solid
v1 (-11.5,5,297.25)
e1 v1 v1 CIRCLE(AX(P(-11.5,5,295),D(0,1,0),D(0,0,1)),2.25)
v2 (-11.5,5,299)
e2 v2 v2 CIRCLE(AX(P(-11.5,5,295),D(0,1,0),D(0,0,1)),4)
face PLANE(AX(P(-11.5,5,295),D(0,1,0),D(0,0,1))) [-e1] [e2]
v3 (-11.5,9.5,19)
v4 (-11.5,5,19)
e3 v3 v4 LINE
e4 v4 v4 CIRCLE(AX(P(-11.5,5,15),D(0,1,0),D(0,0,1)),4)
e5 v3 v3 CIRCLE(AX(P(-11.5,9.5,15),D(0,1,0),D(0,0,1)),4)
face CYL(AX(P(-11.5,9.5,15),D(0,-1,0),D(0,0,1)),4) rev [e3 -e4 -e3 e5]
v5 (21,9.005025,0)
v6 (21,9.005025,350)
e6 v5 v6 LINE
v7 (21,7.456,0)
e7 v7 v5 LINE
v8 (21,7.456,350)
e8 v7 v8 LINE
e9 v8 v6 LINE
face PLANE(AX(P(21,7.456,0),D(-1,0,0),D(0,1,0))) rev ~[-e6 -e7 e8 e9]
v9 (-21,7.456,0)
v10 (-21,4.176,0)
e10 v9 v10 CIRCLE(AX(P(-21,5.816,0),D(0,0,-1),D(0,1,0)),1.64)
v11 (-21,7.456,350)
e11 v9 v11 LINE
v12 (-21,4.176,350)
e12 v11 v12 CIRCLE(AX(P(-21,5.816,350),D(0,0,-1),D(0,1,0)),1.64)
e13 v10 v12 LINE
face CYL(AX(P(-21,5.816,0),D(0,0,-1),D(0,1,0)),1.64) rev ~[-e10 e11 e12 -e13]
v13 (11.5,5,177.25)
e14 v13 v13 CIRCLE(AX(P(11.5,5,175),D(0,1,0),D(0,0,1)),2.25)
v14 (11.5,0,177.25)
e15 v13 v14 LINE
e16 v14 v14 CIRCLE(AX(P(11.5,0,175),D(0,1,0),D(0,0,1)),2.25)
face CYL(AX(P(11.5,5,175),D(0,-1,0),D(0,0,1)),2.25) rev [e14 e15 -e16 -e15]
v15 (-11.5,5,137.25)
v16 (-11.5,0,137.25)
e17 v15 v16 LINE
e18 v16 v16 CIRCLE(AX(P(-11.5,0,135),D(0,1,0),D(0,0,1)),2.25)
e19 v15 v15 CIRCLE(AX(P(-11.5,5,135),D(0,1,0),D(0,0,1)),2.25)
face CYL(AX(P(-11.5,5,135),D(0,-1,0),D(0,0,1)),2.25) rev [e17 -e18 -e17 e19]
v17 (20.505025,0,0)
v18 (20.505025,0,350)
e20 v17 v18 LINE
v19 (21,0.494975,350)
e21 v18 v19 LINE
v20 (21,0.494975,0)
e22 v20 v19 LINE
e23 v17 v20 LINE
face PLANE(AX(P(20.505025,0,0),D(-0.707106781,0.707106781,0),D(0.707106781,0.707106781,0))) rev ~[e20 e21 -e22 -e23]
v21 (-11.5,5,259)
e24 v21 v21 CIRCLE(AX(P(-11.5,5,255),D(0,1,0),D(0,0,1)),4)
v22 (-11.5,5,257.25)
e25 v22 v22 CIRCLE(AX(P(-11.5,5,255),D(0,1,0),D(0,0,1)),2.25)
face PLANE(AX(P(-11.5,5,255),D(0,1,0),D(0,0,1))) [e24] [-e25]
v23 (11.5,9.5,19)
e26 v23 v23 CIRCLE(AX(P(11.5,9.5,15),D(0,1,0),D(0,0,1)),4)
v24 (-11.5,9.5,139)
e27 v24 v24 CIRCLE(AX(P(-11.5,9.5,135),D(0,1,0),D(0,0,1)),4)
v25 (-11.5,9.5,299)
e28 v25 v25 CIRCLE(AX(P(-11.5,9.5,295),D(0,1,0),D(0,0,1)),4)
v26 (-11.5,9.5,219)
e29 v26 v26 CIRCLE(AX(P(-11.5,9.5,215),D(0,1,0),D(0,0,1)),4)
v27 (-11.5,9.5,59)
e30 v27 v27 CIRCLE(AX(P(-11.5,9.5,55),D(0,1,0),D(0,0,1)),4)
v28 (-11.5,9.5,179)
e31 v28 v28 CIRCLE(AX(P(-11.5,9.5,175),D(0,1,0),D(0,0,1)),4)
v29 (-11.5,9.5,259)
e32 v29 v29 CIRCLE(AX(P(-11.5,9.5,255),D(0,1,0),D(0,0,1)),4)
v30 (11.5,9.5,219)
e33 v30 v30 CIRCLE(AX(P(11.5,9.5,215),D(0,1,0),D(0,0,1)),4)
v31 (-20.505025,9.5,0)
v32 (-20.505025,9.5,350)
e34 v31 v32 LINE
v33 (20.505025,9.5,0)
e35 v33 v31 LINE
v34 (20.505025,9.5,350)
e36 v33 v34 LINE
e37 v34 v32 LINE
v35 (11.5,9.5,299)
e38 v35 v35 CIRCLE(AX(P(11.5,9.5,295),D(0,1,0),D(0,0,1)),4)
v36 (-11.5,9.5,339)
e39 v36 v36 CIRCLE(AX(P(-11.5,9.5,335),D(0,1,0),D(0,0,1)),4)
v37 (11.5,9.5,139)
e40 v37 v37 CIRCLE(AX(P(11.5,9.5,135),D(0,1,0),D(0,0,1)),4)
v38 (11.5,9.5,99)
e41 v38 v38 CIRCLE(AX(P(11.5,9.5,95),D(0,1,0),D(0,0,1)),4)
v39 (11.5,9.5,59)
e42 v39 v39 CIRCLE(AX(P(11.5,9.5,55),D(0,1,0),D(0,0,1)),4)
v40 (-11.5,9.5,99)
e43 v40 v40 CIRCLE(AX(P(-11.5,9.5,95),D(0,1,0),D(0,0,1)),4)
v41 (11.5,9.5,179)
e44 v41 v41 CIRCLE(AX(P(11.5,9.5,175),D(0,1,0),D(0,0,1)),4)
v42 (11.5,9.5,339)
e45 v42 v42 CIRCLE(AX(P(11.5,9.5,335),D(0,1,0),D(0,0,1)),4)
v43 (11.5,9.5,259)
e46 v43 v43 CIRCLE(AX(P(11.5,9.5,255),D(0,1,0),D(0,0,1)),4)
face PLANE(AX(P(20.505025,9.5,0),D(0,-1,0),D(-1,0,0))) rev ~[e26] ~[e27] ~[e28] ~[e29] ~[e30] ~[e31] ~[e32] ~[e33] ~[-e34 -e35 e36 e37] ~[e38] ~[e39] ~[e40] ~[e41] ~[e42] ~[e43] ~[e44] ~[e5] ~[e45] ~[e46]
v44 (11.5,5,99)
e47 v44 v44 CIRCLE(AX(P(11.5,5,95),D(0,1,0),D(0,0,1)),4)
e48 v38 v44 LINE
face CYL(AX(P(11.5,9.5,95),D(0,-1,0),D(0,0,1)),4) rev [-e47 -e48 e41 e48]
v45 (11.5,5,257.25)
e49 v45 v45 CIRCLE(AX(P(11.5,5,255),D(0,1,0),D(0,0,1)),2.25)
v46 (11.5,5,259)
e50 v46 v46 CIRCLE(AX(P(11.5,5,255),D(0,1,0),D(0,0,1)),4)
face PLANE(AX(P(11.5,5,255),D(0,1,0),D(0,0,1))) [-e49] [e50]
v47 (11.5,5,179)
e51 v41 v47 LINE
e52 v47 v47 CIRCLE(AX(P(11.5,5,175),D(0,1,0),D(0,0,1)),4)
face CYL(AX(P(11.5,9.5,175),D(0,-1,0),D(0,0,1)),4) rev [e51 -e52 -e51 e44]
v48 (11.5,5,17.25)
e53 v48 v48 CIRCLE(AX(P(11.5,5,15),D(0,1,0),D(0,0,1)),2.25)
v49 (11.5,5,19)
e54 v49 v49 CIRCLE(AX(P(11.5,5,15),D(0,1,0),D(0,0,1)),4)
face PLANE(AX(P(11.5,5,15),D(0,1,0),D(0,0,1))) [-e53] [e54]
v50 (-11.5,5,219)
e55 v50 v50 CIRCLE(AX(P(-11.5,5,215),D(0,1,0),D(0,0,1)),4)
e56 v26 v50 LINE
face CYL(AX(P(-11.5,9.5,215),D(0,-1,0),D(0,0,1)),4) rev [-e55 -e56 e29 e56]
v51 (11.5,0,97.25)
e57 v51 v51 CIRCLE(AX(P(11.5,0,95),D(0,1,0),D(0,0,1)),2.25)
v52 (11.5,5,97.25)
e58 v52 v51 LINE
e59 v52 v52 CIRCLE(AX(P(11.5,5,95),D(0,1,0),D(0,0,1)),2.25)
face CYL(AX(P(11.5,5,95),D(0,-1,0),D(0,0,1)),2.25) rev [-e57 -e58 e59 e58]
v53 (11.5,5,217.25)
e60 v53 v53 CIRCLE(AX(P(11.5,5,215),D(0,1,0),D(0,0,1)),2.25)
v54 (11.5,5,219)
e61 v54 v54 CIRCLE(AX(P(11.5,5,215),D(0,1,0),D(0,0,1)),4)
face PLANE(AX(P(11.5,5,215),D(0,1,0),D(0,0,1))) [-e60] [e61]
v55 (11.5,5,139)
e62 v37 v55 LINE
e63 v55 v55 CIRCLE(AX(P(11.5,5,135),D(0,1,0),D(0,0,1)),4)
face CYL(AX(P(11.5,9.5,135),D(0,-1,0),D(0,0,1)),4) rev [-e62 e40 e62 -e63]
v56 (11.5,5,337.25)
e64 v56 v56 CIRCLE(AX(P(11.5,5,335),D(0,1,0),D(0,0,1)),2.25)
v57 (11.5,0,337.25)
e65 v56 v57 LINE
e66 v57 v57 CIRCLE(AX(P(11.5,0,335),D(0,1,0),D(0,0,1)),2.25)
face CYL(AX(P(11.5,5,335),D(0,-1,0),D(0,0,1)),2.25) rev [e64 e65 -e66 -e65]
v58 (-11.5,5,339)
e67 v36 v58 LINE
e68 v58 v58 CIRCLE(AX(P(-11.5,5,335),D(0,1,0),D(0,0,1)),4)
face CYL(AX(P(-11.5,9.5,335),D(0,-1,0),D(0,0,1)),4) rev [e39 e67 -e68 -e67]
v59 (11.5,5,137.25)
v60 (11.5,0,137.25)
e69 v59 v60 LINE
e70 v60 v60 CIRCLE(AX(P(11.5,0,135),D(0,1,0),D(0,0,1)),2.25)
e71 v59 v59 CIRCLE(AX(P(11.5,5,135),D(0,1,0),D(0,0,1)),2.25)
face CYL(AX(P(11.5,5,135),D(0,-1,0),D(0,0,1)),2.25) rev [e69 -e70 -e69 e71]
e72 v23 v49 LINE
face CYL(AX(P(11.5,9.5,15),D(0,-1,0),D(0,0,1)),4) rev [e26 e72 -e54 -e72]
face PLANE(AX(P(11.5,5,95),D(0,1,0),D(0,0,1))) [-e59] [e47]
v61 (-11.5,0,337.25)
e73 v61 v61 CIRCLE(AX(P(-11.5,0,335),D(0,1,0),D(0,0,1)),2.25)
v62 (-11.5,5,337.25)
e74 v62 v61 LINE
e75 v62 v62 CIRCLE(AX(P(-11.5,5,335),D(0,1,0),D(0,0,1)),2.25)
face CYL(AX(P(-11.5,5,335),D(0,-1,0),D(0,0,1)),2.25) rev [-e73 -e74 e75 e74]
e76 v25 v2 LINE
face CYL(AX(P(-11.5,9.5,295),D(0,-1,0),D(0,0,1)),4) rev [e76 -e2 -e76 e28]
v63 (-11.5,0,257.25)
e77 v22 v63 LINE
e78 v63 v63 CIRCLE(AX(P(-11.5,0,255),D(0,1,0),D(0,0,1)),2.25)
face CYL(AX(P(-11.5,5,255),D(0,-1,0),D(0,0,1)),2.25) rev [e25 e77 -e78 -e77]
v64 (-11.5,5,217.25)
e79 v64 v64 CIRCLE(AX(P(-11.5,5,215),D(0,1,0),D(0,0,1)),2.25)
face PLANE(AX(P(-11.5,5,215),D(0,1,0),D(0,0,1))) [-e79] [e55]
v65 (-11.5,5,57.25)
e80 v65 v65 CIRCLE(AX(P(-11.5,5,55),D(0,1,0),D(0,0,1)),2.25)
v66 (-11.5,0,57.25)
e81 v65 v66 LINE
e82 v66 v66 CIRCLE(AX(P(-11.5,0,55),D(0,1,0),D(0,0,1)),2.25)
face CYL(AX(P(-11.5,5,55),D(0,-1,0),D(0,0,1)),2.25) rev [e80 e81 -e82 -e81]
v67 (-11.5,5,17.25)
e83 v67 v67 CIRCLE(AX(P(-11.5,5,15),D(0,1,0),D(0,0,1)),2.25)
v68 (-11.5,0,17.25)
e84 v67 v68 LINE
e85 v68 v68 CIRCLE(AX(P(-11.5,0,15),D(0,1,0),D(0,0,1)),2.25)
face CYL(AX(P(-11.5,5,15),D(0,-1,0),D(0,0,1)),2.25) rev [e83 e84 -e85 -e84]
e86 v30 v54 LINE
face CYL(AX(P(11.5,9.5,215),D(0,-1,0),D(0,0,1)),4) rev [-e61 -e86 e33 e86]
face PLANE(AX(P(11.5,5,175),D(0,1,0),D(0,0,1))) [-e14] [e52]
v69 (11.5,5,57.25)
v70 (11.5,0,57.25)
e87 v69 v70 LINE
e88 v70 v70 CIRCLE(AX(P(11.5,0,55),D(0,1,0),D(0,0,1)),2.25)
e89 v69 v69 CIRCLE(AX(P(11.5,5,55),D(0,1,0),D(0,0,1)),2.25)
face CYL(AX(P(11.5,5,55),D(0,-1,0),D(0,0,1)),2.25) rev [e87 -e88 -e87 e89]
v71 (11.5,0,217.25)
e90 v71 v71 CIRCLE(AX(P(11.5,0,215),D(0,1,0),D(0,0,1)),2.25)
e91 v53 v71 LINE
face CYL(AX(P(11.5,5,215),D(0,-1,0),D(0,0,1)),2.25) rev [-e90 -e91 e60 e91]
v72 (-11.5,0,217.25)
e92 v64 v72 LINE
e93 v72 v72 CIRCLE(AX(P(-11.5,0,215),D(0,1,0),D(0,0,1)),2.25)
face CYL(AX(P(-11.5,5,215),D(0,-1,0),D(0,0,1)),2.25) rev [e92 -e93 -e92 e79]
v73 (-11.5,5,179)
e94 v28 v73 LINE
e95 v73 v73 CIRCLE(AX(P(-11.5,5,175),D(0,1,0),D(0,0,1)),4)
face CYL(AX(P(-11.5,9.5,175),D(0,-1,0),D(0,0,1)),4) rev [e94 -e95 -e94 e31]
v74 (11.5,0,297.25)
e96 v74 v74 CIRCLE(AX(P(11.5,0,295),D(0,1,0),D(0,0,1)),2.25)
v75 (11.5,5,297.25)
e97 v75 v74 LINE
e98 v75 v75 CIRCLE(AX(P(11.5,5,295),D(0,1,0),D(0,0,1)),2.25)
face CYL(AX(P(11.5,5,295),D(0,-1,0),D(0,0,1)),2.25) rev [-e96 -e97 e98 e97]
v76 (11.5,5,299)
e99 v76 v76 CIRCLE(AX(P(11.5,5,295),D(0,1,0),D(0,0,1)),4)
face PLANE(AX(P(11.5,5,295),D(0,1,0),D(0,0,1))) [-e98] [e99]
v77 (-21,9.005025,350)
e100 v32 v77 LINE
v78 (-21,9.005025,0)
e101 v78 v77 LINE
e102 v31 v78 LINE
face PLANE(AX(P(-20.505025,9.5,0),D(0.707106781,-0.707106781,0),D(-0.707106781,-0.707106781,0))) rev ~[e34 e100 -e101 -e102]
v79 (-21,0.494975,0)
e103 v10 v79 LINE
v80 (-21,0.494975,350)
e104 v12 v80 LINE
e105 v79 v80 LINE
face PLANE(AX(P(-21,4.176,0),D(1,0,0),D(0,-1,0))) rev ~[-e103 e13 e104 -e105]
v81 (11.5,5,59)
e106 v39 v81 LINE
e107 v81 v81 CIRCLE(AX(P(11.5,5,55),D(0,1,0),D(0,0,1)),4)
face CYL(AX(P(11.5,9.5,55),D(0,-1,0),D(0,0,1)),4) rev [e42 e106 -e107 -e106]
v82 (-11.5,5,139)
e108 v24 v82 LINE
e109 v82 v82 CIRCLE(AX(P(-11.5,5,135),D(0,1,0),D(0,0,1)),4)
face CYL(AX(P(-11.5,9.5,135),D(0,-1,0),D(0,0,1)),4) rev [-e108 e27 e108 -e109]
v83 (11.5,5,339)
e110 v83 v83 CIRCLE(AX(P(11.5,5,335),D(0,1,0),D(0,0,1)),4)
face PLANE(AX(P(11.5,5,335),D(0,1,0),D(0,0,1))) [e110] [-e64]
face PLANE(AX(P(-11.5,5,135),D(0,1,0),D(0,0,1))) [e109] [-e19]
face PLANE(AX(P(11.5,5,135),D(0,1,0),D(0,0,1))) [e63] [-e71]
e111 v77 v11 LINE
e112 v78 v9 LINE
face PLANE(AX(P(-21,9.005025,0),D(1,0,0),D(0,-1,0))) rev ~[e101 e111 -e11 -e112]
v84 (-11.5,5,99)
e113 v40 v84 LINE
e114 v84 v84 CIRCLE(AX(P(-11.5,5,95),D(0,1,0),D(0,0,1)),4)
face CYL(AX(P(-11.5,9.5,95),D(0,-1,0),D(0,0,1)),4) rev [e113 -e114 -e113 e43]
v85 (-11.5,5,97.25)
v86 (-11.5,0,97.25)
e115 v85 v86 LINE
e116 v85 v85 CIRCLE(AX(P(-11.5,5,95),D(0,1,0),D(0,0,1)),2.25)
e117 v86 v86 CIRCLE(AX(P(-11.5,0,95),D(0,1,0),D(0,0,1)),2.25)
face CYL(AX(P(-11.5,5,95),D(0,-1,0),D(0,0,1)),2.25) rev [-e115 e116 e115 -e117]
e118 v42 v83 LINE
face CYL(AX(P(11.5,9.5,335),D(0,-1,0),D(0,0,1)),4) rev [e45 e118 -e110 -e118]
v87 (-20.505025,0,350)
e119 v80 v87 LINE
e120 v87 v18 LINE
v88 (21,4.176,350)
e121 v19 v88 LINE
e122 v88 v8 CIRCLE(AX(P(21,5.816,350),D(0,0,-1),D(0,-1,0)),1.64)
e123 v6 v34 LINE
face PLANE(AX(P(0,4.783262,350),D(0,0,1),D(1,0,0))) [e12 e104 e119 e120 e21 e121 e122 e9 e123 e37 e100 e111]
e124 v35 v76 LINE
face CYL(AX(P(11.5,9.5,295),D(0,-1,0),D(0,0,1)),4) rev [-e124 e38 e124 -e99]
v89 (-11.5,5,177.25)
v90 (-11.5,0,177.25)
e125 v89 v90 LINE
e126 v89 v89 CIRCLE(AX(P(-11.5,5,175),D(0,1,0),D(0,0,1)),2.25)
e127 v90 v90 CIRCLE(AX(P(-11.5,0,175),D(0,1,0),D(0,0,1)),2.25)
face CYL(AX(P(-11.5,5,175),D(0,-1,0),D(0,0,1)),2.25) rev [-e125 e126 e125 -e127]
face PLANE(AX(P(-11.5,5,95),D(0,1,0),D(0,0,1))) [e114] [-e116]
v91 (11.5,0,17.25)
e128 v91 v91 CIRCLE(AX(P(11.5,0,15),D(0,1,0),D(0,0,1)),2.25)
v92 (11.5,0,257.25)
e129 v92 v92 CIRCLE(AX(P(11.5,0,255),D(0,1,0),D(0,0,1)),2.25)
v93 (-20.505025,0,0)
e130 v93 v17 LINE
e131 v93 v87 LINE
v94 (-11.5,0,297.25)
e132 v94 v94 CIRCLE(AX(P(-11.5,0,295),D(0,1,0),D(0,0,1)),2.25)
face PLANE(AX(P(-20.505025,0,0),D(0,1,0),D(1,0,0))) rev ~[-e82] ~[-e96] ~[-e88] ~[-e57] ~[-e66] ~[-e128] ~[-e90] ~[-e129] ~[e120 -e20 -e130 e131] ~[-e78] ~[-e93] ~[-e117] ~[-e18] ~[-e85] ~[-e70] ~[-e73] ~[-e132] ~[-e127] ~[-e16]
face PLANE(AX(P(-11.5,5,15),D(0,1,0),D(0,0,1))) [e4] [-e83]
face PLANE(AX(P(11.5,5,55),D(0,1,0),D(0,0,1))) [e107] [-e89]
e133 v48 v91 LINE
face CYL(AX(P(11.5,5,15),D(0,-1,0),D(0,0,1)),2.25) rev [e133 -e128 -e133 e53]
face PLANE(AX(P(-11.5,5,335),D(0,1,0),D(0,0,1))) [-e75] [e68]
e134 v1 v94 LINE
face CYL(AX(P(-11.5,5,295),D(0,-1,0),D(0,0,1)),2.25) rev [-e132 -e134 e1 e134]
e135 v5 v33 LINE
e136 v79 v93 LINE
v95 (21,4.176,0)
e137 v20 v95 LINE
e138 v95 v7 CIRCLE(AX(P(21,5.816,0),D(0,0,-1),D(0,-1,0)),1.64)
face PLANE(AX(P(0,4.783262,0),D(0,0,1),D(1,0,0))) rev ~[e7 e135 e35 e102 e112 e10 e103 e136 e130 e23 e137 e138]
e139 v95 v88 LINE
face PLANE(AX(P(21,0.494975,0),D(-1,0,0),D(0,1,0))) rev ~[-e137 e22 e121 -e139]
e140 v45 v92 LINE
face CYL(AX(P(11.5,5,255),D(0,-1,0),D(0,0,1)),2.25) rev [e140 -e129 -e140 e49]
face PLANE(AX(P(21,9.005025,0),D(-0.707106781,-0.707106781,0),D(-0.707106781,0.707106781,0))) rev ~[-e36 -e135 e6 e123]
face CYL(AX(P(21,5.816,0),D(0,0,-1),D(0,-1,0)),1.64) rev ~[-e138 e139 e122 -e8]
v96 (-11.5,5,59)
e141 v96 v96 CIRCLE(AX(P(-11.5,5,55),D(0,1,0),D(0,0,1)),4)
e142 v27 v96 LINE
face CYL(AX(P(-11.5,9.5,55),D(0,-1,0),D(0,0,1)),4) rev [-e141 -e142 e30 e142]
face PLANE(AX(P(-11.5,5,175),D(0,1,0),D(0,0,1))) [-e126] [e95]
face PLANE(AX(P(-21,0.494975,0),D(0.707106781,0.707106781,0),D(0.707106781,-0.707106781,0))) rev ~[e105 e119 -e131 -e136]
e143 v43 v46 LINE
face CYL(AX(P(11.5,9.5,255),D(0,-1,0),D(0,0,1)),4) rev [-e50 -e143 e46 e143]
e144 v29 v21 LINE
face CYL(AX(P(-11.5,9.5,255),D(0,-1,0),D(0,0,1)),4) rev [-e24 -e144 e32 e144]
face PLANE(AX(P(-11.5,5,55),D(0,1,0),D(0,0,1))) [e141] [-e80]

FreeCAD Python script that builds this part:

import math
import FreeCAD as App
import Part
import Sketcher
from FreeCAD import Vector
Q = App.Units.Quantity


def add_polygon(sketch, points):
    """Adds a closed chain of lines whose ends are joined by coincident constraints."""
    first, n = sketch.GeometryCount, len(points)
    for a, b in zip(points, points[1:] + points[:1]):
        sketch.addGeometry(Part.LineSegment(App.Vector(*a, 0), App.Vector(*b, 0)), False)
    for i in range(n):
        sketch.addConstraint(Sketcher.Constraint("Coincident", first + i, 2, first + (i + 1) % n, 1))

doc = App.newDocument("Part")
body = doc.addObject("PartDesign::Body", "Body")

sketch1 = body.newObject("Sketcher::SketchObject", "Sketch")
sketch1.AttachmentSupport = (doc.getObject("XY_Plane"), [""])
sketch1.MapMode = "FlatFace"
sketch1.addGeometry([
    Part.LineSegment(Vector(-21, 9, 0), Vector(-21, 7.5, 0)),
    Part.ArcOfCircle(Part.Circle(Vector(-21, 5.8, 0), Vector(0, 0, 1), 1.6), math.radians(-90), math.radians(90)),
    Part.LineSegment(Vector(-21, 4.2, 0), Vector(-21, 0.5, 0)),
    Part.LineSegment(Vector(-21, 0.5, 0), Vector(-20.5, 0, 0)),
    Part.LineSegment(Vector(-20.5, 0, 0), Vector(20.5, 0, 0)),
    Part.LineSegment(Vector(20.5, 0, 0), Vector(21, 0.5, 0)),
    Part.LineSegment(Vector(21, 0.5, 0), Vector(21, 4.2, 0)),
    Part.ArcOfCircle(Part.Circle(Vector(21, 5.8, 0), Vector(0, 0, 1), 1.6), math.radians(90), math.radians(270)),
    Part.LineSegment(Vector(21, 7.5, 0), Vector(21, 9, 0)),
    Part.LineSegment(Vector(21, 9, 0), Vector(20.5, 9.5, 0)),
    Part.LineSegment(Vector(20.5, 9.5, 0), Vector(-20.5, 9.5, 0)),
    Part.LineSegment(Vector(-20.5, 9.5, 0), Vector(-21, 9, 0)),
], False)
sketch1.addConstraint([
    Sketcher.Constraint("Coincident", 0, 2, 1, 2),
    Sketcher.Constraint("Coincident", 1, 1, 2, 1),
    Sketcher.Constraint("Coincident", 2, 2, 3, 1),
    Sketcher.Constraint("Coincident", 3, 2, 4, 1),
    Sketcher.Constraint("Coincident", 4, 2, 5, 1),
    Sketcher.Constraint("Coincident", 5, 2, 6, 1),
    Sketcher.Constraint("Coincident", 6, 2, 7, 2),
    Sketcher.Constraint("Coincident", 7, 1, 8, 1),
    Sketcher.Constraint("Coincident", 8, 2, 9, 1),
    Sketcher.Constraint("Coincident", 9, 2, 10, 1),
    Sketcher.Constraint("Coincident", 10, 2, 11, 1),
    Sketcher.Constraint("Coincident", 11, 2, 0, 1),
    Sketcher.Constraint("Vertical", 0),
    Sketcher.Constraint("Vertical", 2),
    Sketcher.Constraint("Horizontal", 4),
    Sketcher.Constraint("Vertical", 6),
    Sketcher.Constraint("Vertical", 8),
    Sketcher.Constraint("Horizontal", 10),
    Sketcher.Constraint("Equal", 1, 7),
    Sketcher.Constraint("Symmetric", 3, 2, 4, 2, -1, 1),
    Sketcher.Constraint("Symmetric", 1, 3, 7, 3, -2),
    Sketcher.Constraint("Symmetric", 2, 2, 5, 2, -2),
    Sketcher.Constraint("Symmetric", 8, 2, 11, 2, -2),
    Sketcher.Constraint("Perpendicular", 3, 5),
    Sketcher.Constraint("Perpendicular", 5, 9),
    Sketcher.Constraint("Perpendicular", 9, 11),
    Sketcher.Constraint("Vertical", 1, 3, 0, 2),
    Sketcher.Constraint("Vertical", 0, 2, 1, 1),
    Sketcher.Constraint("Vertical", 4, 2, 9, 2),
    Sketcher.Constraint("Radius", 1, Q("1.64 mm")),
    Sketcher.Constraint("DistanceX", 1, 3, -1, 1, Q("21 mm")),
    Sketcher.Constraint("Distance", 3, Q("0.7 mm")),
    Sketcher.Constraint("DistanceY", -1, 1, 9, 2, Q("9.5 mm")),
    Sketcher.Constraint("DistanceY", -1, 1, 1, 3, Q("5.816 mm")),
])
pad1 = body.newObject("PartDesign::Pad", "Pad")
pad1.Profile = sketch1
pad1.Length = 350

sketch2 = body.newObject("Sketcher::SketchObject", "Sketch001")
sketch2.AttachmentSupport = (doc.getObject("YZ_Plane"), [""])
sketch2.MapMode = "FlatFace"
sketch2.AttachmentOffset = App.Placement(Vector(0, 0, 11.5), App.Rotation())
add_polygon(sketch2, [(9.5, 11), (9.5, 15), (0, 15), (0, 12.8), (5, 12.8), (5, 11)])
sketch2.addGeometry(Part.LineSegment(Vector(0, 15, 0), Vector(9.5, 15, 0)), True)
sketch2.addConstraint([
    Sketcher.Constraint("Vertical", 0),
    Sketcher.Constraint("Horizontal", 1),
    Sketcher.Constraint("Vertical", 2),
    Sketcher.Constraint("Horizontal", 3),
    Sketcher.Constraint("Vertical", 4),
    Sketcher.Constraint("Horizontal", 5),
    Sketcher.Constraint("Horizontal", 6),
    Sketcher.Constraint("Coincident", 6, 1, 1, 2),
    Sketcher.Constraint("PointOnObject", 1, 2, -2),
    Sketcher.Constraint("Vertical", 5, 2, 6, 2),
    Sketcher.Constraint("DistanceX", 3, 1, 3, 2, Q("5 mm")),
    Sketcher.Constraint("DistanceY", 0, 1, 0, 2, Q("4 mm")),
    Sketcher.Constraint("DistanceX", 1, 2, 1, 1, Q("9.5 mm")),
    Sketcher.Constraint("DistanceY", -1, 1, 0, 2, Q("15 mm")),
    Sketcher.Constraint("DistanceY", 2, 2, 2, 1, Q("2.25 mm")),
])
groove = body.newObject("PartDesign::Groove", "Groove")
groove.Profile = sketch2
groove.ReferenceAxis = (sketch2, ["Axis0"])
groove.Angle = 360

sketch3 = body.newObject("Sketcher::SketchObject", "Sketch002")
sketch3.AttachmentSupport = (doc.getObject("YZ_Plane"), [""])
sketch3.MapMode = "FlatFace"
sketch3.AttachmentOffset = App.Placement(Vector(0, 0, 11.5), App.Rotation())
add_polygon(sketch3, [(9.5, 331), (9.5, 335), (0, 335), (0, 332.8), (5, 332.8), (5, 331)])
sketch3.addGeometry(Part.LineSegment(Vector(0, 335, 0), Vector(9.5, 335, 0)), True)
sketch3.addConstraint([
    Sketcher.Constraint("Vertical", 0),
    Sketcher.Constraint("Horizontal", 1),
    Sketcher.Constraint("Vertical", 2),
    Sketcher.Constraint("Horizontal", 3),
    Sketcher.Constraint("Vertical", 4),
    Sketcher.Constraint("Horizontal", 5),
    Sketcher.Constraint("Horizontal", 6),
    Sketcher.Constraint("Coincident", 6, 1, 1, 2),
    Sketcher.Constraint("PointOnObject", 1, 2, -2),
    Sketcher.Constraint("Vertical", 5, 2, 6, 2),
    Sketcher.Constraint("DistanceX", 3, 1, 3, 2, Q("5 mm")),
    Sketcher.Constraint("DistanceY", 0, 1, 0, 2, Q("4 mm")),
    Sketcher.Constraint("DistanceX", 1, 2, 1, 1, Q("9.5 mm")),
    Sketcher.Constraint("DistanceY", -1, 1, 0, 2, Q("335 mm")),
    Sketcher.Constraint("DistanceY", 2, 2, 2, 1, Q("2.25 mm")),
])
groove2 = body.newObject("PartDesign::Groove", "Groove001")
groove2.Profile = sketch3
groove2.ReferenceAxis = (sketch3, ["Axis0"])
groove2.Angle = 360

sketch4 = body.newObject("Sketcher::SketchObject", "Sketch003")
sketch4.AttachmentSupport = (doc.getObject("YZ_Plane"), [""])
sketch4.MapMode = "FlatFace"
sketch4.AttachmentOffset = App.Placement(Vector(0, 0, -11.5), App.Rotation())
add_polygon(sketch4, [(9.5, 331), (9.5, 335), (0, 335), (0, 332.8), (5, 332.8), (5, 331)])
sketch4.addGeometry(Part.LineSegment(Vector(0, 335, 0), Vector(9.5, 335, 0)), True)
sketch4.addConstraint([
    Sketcher.Constraint("Vertical", 0),
    Sketcher.Constraint("Horizontal", 1),
    Sketcher.Constraint("Vertical", 2),
    Sketcher.Constraint("Horizontal", 3),
    Sketcher.Constraint("Vertical", 4),
    Sketcher.Constraint("Horizontal", 5),
    Sketcher.Constraint("Horizontal", 6),
    Sketcher.Constraint("Coincident", 6, 1, 1, 2),
    Sketcher.Constraint("PointOnObject", 1, 2, -2),
    Sketcher.Constraint("Vertical", 5, 2, 6, 2),
    Sketcher.Constraint("DistanceX", 3, 1, 3, 2, Q("5 mm")),
    Sketcher.Constraint("DistanceY", 0, 1, 0, 2, Q("4 mm")),
    Sketcher.Constraint("DistanceX", 1, 2, 1, 1, Q("9.5 mm")),
    Sketcher.Constraint("DistanceY", -1, 1, 0, 2, Q("335 mm")),
    Sketcher.Constraint("DistanceY", 2, 2, 2, 1, Q("2.25 mm")),
])
groove3 = body.newObject("PartDesign::Groove", "Groove002")
groove3.Profile = sketch4
groove3.ReferenceAxis = (sketch4, ["Axis0"])
groove3.Angle = 360

sketch5 = body.newObject("Sketcher::SketchObject", "Sketch004")
sketch5.AttachmentSupport = (doc.getObject("YZ_Plane"), [""])
sketch5.MapMode = "FlatFace"
sketch5.AttachmentOffset = App.Placement(Vector(0, 0, 11.5), App.Rotation())
add_polygon(sketch5, [(9.5, 291), (9.5, 295), (0, 295), (0, 292.8), (5, 292.8), (5, 291)])
sketch5.addGeometry(Part.LineSegment(Vector(0, 295, 0), Vector(9.5, 295, 0)), True)
sketch5.addConstraint([
    Sketcher.Constraint("Vertical", 0),
    Sketcher.Constraint("Horizontal", 1),
    Sketcher.Constraint("Vertical", 2),
    Sketcher.Constraint("Horizontal", 3),
    Sketcher.Constraint("Vertical", 4),
    Sketcher.Constraint("Horizontal", 5),
    Sketcher.Constraint("Horizontal", 6),
    Sketcher.Constraint("Coincident", 6, 1, 1, 2),
    Sketcher.Constraint("PointOnObject", 1, 2, -2),
    Sketcher.Constraint("Vertical", 5, 2, 6, 2),
    Sketcher.Constraint("DistanceX", 3, 1, 3, 2, Q("5 mm")),
    Sketcher.Constraint("DistanceY", 0, 1, 0, 2, Q("4 mm")),
    Sketcher.Constraint("DistanceX", 1, 2, 1, 1, Q("9.5 mm")),
    Sketcher.Constraint("DistanceY", -1, 1, 0, 2, Q("295 mm")),
    Sketcher.Constraint("DistanceY", 2, 2, 2, 1, Q("2.25 mm")),
])
groove4 = body.newObject("PartDesign::Groove", "Groove003")
groove4.Profile = sketch5
groove4.ReferenceAxis = (sketch5, ["Axis0"])
groove4.Angle = 360

sketch6 = body.newObject("Sketcher::SketchObject", "Sketch005")
sketch6.AttachmentSupport = (doc.getObject("YZ_Plane"), [""])
sketch6.MapMode = "FlatFace"
sketch6.AttachmentOffset = App.Placement(Vector(0, 0, -11.5), App.Rotation())
add_polygon(sketch6, [(9.5, 291), (9.5, 295), (0, 295), (0, 292.8), (5, 292.8), (5, 291)])
sketch6.addGeometry(Part.LineSegment(Vector(0, 295, 0), Vector(9.5, 295, 0)), True)
sketch6.addConstraint([
    Sketcher.Constraint("Vertical", 0),
    Sketcher.Constraint("Horizontal", 1),
    Sketcher.Constraint("Vertical", 2),
    Sketcher.Constraint("Horizontal", 3),
    Sketcher.Constraint("Vertical", 4),
    Sketcher.Constraint("Horizontal", 5),
    Sketcher.Constraint("Horizontal", 6),
    Sketcher.Constraint("Coincident", 6, 1, 1, 2),
    Sketcher.Constraint("PointOnObject", 1, 2, -2),
    Sketcher.Constraint("Vertical", 5, 2, 6, 2),
    Sketcher.Constraint("DistanceX", 3, 1, 3, 2, Q("5 mm")),
    Sketcher.Constraint("DistanceY", 0, 1, 0, 2, Q("4 mm")),
    Sketcher.Constraint("DistanceX", 1, 2, 1, 1, Q("9.5 mm")),
    Sketcher.Constraint("DistanceY", -1, 1, 0, 2, Q("295 mm")),
    Sketcher.Constraint("DistanceY", 2, 2, 2, 1, Q("2.25 mm")),
])
groove5 = body.newObject("PartDesign::Groove", "Groove004")
groove5.Profile = sketch6
groove5.ReferenceAxis = (sketch6, ["Axis0"])
groove5.Angle = 360

sketch7 = body.newObject("Sketcher::SketchObject", "Sketch006")
sketch7.AttachmentSupport = (doc.getObject("YZ_Plane"), [""])
sketch7.MapMode = "FlatFace"
sketch7.AttachmentOffset = App.Placement(Vector(0, 0, 11.5), App.Rotation())
add_polygon(sketch7, [(9.5, 251), (9.5, 255), (0, 255), (0, 252.8), (5, 252.8), (5, 251)])
sketch7.addGeometry(Part.LineSegment(Vector(0, 255, 0), Vector(9.5, 255, 0)), True)
sketch7.addConstraint([
    Sketcher.Constraint("Vertical", 0),
    Sketcher.Constraint("Horizontal", 1),
    Sketcher.Constraint("Vertical", 2),
    Sketcher.Constraint("Horizontal", 3),
    Sketcher.Constraint("Vertical", 4),
    Sketcher.Constraint("Horizontal", 5),
    Sketcher.Constraint("Horizontal", 6),
    Sketcher.Constraint("Coincident", 6, 1, 1, 2),
    Sketcher.Constraint("PointOnObject", 1, 2, -2),
    Sketcher.Constraint("Vertical", 5, 2, 6, 2),
    Sketcher.Constraint("DistanceX", 3, 1, 3, 2, Q("5 mm")),
    Sketcher.Constraint("DistanceY", 0, 1, 0, 2, Q("4 mm")),
    Sketcher.Constraint("DistanceX", 1, 2, 1, 1, Q("9.5 mm")),
    Sketcher.Constraint("DistanceY", -1, 1, 0, 2, Q("255 mm")),
    Sketcher.Constraint("DistanceY", 2, 2, 2, 1, Q("2.25 mm")),
])
groove6 = body.newObject("PartDesign::Groove", "Groove005")
groove6.Profile = sketch7
groove6.ReferenceAxis = (sketch7, ["Axis0"])
groove6.Angle = 360

sketch8 = body.newObject("Sketcher::SketchObject", "Sketch007")
sketch8.AttachmentSupport = (doc.getObject("YZ_Plane"), [""])
sketch8.MapMode = "FlatFace"
sketch8.AttachmentOffset = App.Placement(Vector(0, 0, -11.5), App.Rotation())
add_polygon(sketch8, [(9.5, 251), (9.5, 255), (0, 255), (0, 252.8), (5, 252.8), (5, 251)])
sketch8.addGeometry(Part.LineSegment(Vector(0, 255, 0), Vector(9.5, 255, 0)), True)
sketch8.addConstraint([
    Sketcher.Constraint("Vertical", 0),
    Sketcher.Constraint("Horizontal", 1),
    Sketcher.Constraint("Vertical", 2),
    Sketcher.Constraint("Horizontal", 3),
    Sketcher.Constraint("Vertical", 4),
    Sketcher.Constraint("Horizontal", 5),
    Sketcher.Constraint("Horizontal", 6),
    Sketcher.Constraint("Coincident", 6, 1, 1, 2),
    Sketcher.Constraint("PointOnObject", 1, 2, -2),
    Sketcher.Constraint("Vertical", 5, 2, 6, 2),
    Sketcher.Constraint("DistanceX", 3, 1, 3, 2, Q("5 mm")),
    Sketcher.Constraint("DistanceY", 0, 1, 0, 2, Q("4 mm")),
    Sketcher.Constraint("DistanceX", 1, 2, 1, 1, Q("9.5 mm")),
    Sketcher.Constraint("DistanceY", -1, 1, 0, 2, Q("255 mm")),
    Sketcher.Constraint("DistanceY", 2, 2, 2, 1, Q("2.25 mm")),
])
groove7 = body.newObject("PartDesign::Groove", "Groove006")
groove7.Profile = sketch8
groove7.ReferenceAxis = (sketch8, ["Axis0"])
groove7.Angle = 360

sketch9 = body.newObject("Sketcher::SketchObject", "Sketch008")
sketch9.AttachmentSupport = (doc.getObject("YZ_Plane"), [""])
sketch9.MapMode = "FlatFace"
sketch9.AttachmentOffset = App.Placement(Vector(0, 0, 11.5), App.Rotation())
add_polygon(sketch9, [(9.5, 211), (9.5, 215), (0, 215), (0, 212.8), (5, 212.8), (5, 211)])
sketch9.addGeometry(Part.LineSegment(Vector(0, 215, 0), Vector(9.5, 215, 0)), True)
sketch9.addConstraint([
    Sketcher.Constraint("Vertical", 0),
    Sketcher.Constraint("Horizontal", 1),
    Sketcher.Constraint("Vertical", 2),
    Sketcher.Constraint("Horizontal", 3),
    Sketcher.Constraint("Vertical", 4),
    Sketcher.Constraint("Horizontal", 5),
    Sketcher.Constraint("Horizontal", 6),
    Sketcher.Constraint("Coincident", 6, 1, 1, 2),
    Sketcher.Constraint("PointOnObject", 1, 2, -2),
    Sketcher.Constraint("Vertical", 5, 2, 6, 2),
    Sketcher.Constraint("DistanceX", 3, 1, 3, 2, Q("5 mm")),
    Sketcher.Constraint("DistanceY", 0, 1, 0, 2, Q("4 mm")),
    Sketcher.Constraint("DistanceX", 1, 2, 1, 1, Q("9.5 mm")),
    Sketcher.Constraint("DistanceY", -1, 1, 0, 2, Q("215 mm")),
    Sketcher.Constraint("DistanceY", 2, 2, 2, 1, Q("2.25 mm")),
])
groove8 = body.newObject("PartDesign::Groove", "Groove007")
groove8.Profile = sketch9
groove8.ReferenceAxis = (sketch9, ["Axis0"])
groove8.Angle = 360

sketch10 = body.newObject("Sketcher::SketchObject", "Sketch009")
sketch10.AttachmentSupport = (doc.getObject("YZ_Plane"), [""])
sketch10.MapMode = "FlatFace"
sketch10.AttachmentOffset = App.Placement(Vector(0, 0, -11.5), App.Rotation())
add_polygon(sketch10, [(9.5, 211), (9.5, 215), (0, 215), (0, 212.8), (5, 212.8), (5, 211)])
sketch10.addGeometry(Part.LineSegment(Vector(0, 215, 0), Vector(9.5, 215, 0)), True)
sketch10.addConstraint([
    Sketcher.Constraint("Vertical", 0),
    Sketcher.Constraint("Horizontal", 1),
    Sketcher.Constraint("Vertical", 2),
    Sketcher.Constraint("Horizontal", 3),
    Sketcher.Constraint("Vertical", 4),
    Sketcher.Constraint("Horizontal", 5),
    Sketcher.Constraint("Horizontal", 6),
    Sketcher.Constraint("Coincident", 6, 1, 1, 2),
    Sketcher.Constraint("PointOnObject", 1, 2, -2),
    Sketcher.Constraint("Vertical", 5, 2, 6, 2),
    Sketcher.Constraint("DistanceX", 3, 1, 3, 2, Q("5 mm")),
    Sketcher.Constraint("DistanceY", 0, 1, 0, 2, Q("4 mm")),
    Sketcher.Constraint("DistanceX", 1, 2, 1, 1, Q("9.5 mm")),
    Sketcher.Constraint("DistanceY", -1, 1, 0, 2, Q("215 mm")),
    Sketcher.Constraint("DistanceY", 2, 2, 2, 1, Q("2.25 mm")),
])
groove9 = body.newObject("PartDesign::Groove", "Groove008")
groove9.Profile = sketch10
groove9.ReferenceAxis = (sketch10, ["Axis0"])
groove9.Angle = 360

sketch11 = body.newObject("Sketcher::SketchObject", "Sketch010")
sketch11.AttachmentSupport = (doc.getObject("YZ_Plane"), [""])
sketch11.MapMode = "FlatFace"
sketch11.AttachmentOffset = App.Placement(Vector(0, 0, 11.5), App.Rotation())
add_polygon(sketch11, [(9.5, 171), (9.5, 175), (0, 175), (0, 172.8), (5, 172.8), (5, 171)])
sketch11.addGeometry(Part.LineSegment(Vector(0, 175, 0), Vector(9.5, 175, 0)), True)
sketch11.addConstraint([
    Sketcher.Constraint("Vertical", 0),
    Sketcher.Constraint("Horizontal", 1),
    Sketcher.Constraint("Vertical", 2),
    Sketcher.Constraint("Horizontal", 3),
    Sketcher.Constraint("Vertical", 4),
    Sketcher.Constraint("Horizontal", 5),
    Sketcher.Constraint("Horizontal", 6),
    Sketcher.Constraint("Coincident", 6, 1, 1, 2),
    Sketcher.Constraint("PointOnObject", 1, 2, -2),
    Sketcher.Constraint("Vertical", 5, 2, 6, 2),
    Sketcher.Constraint("DistanceX", 3, 1, 3, 2, Q("5 mm")),
    Sketcher.Constraint("DistanceY", 0, 1, 0, 2, Q("4 mm")),
    Sketcher.Constraint("DistanceX", 1, 2, 1, 1, Q("9.5 mm")),
    Sketcher.Constraint("DistanceY", -1, 1, 0, 2, Q("175 mm")),
    Sketcher.Constraint("DistanceY", 2, 2, 2, 1, Q("2.25 mm")),
])
groove10 = body.newObject("PartDesign::Groove", "Groove009")
groove10.Profile = sketch11
groove10.ReferenceAxis = (sketch11, ["Axis0"])
groove10.Angle = 360

sketch12 = body.newObject("Sketcher::SketchObject", "Sketch011")
sketch12.AttachmentSupport = (doc.getObject("YZ_Plane"), [""])
sketch12.MapMode = "FlatFace"
sketch12.AttachmentOffset = App.Placement(Vector(0, 0, -11.5), App.Rotation())
add_polygon(sketch12, [(9.5, 171), (9.5, 175), (0, 175), (0, 172.8), (5, 172.8), (5, 171)])
sketch12.addGeometry(Part.LineSegment(Vector(0, 175, 0), Vector(9.5, 175, 0)), True)
sketch12.addConstraint([
    Sketcher.Constraint("Vertical", 0),
    Sketcher.Constraint("Horizontal", 1),
    Sketcher.Constraint("Vertical", 2),
    Sketcher.Constraint("Horizontal", 3),
    Sketcher.Constraint("Vertical", 4),
    Sketcher.Constraint("Horizontal", 5),
    Sketcher.Constraint("Horizontal", 6),
    Sketcher.Constraint("Coincident", 6, 1, 1, 2),
    Sketcher.Constraint("PointOnObject", 1, 2, -2),
    Sketcher.Constraint("Vertical", 5, 2, 6, 2),
    Sketcher.Constraint("DistanceX", 3, 1, 3, 2, Q("5 mm")),
    Sketcher.Constraint("DistanceY", 0, 1, 0, 2, Q("4 mm")),
    Sketcher.Constraint("DistanceX", 1, 2, 1, 1, Q("9.5 mm")),
    Sketcher.Constraint("DistanceY", -1, 1, 0, 2, Q("175 mm")),
    Sketcher.Constraint("DistanceY", 2, 2, 2, 1, Q("2.25 mm")),
])
groove11 = body.newObject("PartDesign::Groove", "Groove010")
groove11.Profile = sketch12
groove11.ReferenceAxis = (sketch12, ["Axis0"])
groove11.Angle = 360

sketch13 = body.newObject("Sketcher::SketchObject", "Sketch012")
sketch13.AttachmentSupport = (doc.getObject("YZ_Plane"), [""])
sketch13.MapMode = "FlatFace"
sketch13.AttachmentOffset = App.Placement(Vector(0, 0, 11.5), App.Rotation())
add_polygon(sketch13, [(9.5, 131), (9.5, 135), (0, 135), (0, 132.8), (5, 132.8), (5, 131)])
sketch13.addGeometry(Part.LineSegment(Vector(0, 135, 0), Vector(9.5, 135, 0)), True)
sketch13.addConstraint([
    Sketcher.Constraint("Vertical", 0),
    Sketcher.Constraint("Horizontal", 1),
    Sketcher.Constraint("Vertical", 2),
    Sketcher.Constraint("Horizontal", 3),
    Sketcher.Constraint("Vertical", 4),
    Sketcher.Constraint("Horizontal", 5),
    Sketcher.Constraint("Horizontal", 6),
    Sketcher.Constraint("Coincident", 6, 1, 1, 2),
    Sketcher.Constraint("PointOnObject", 1, 2, -2),
    Sketcher.Constraint("Vertical", 5, 2, 6, 2),
    Sketcher.Constraint("DistanceX", 3, 1, 3, 2, Q("5 mm")),
    Sketcher.Constraint("DistanceY", 0, 1, 0, 2, Q("4 mm")),
    Sketcher.Constraint("DistanceX", 1, 2, 1, 1, Q("9.5 mm")),
    Sketcher.Constraint("DistanceY", -1, 1, 0, 2, Q("135 mm")),
    Sketcher.Constraint("DistanceY", 2, 2, 2, 1, Q("2.25 mm")),
])
groove12 = body.newObject("PartDesign::Groove", "Groove011")
groove12.Profile = sketch13
groove12.ReferenceAxis = (sketch13, ["Axis0"])
groove12.Angle = 360

sketch14 = body.newObject("Sketcher::SketchObject", "Sketch013")
sketch14.AttachmentSupport = (doc.getObject("YZ_Plane"), [""])
sketch14.MapMode = "FlatFace"
sketch14.AttachmentOffset = App.Placement(Vector(0, 0, -11.5), App.Rotation())
add_polygon(sketch14, [(9.5, 131), (9.5, 135), (0, 135), (0, 132.8), (5, 132.8), (5, 131)])
sketch14.addGeometry(Part.LineSegment(Vector(0, 135, 0), Vector(9.5, 135, 0)), True)
sketch14.addConstraint([
    Sketcher.Constraint("Vertical", 0),
    Sketcher.Constraint("Horizontal", 1),
    Sketcher.Constraint("Vertical", 2),
    Sketcher.Constraint("Horizontal", 3),
    Sketcher.Constraint("Vertical", 4),
    Sketcher.Constraint("Horizontal", 5),
    Sketcher.Constraint("Horizontal", 6),
    Sketcher.Constraint("Coincident", 6, 1, 1, 2),
    Sketcher.Constraint("PointOnObject", 1, 2, -2),
    Sketcher.Constraint("Vertical", 5, 2, 6, 2),
    Sketcher.Constraint("DistanceX", 3, 1, 3, 2, Q("5 mm")),
    Sketcher.Constraint("DistanceY", 0, 1, 0, 2, Q("4 mm")),
    Sketcher.Constraint("DistanceX", 1, 2, 1, 1, Q("9.5 mm")),
    Sketcher.Constraint("DistanceY", -1, 1, 0, 2, Q("135 mm")),
    Sketcher.Constraint("DistanceY", 2, 2, 2, 1, Q("2.25 mm")),
])
groove13 = body.newObject("PartDesign::Groove", "Groove012")
groove13.Profile = sketch14
groove13.ReferenceAxis = (sketch14, ["Axis0"])
groove13.Angle = 360

sketch15 = body.newObject("Sketcher::SketchObject", "Sketch014")
sketch15.AttachmentSupport = (doc.getObject("YZ_Plane"), [""])
sketch15.MapMode = "FlatFace"
sketch15.AttachmentOffset = App.Placement(Vector(0, 0, 11.5), App.Rotation())
add_polygon(sketch15, [(9.5, 91), (9.5, 95), (0, 95), (0, 92.8), (5, 92.8), (5, 91)])
sketch15.addGeometry(Part.LineSegment(Vector(0, 95, 0), Vector(9.5, 95, 0)), True)
sketch15.addConstraint([
    Sketcher.Constraint("Vertical", 0),
    Sketcher.Constraint("Horizontal", 1),
    Sketcher.Constraint("Vertical", 2),
    Sketcher.Constraint("Horizontal", 3),
    Sketcher.Constraint("Vertical", 4),
    Sketcher.Constraint("Horizontal", 5),
    Sketcher.Constraint("Horizontal", 6),
    Sketcher.Constraint("Coincident", 6, 1, 1, 2),
    Sketcher.Constraint("PointOnObject", 1, 2, -2),
    Sketcher.Constraint("Vertical", 5, 2, 6, 2),
    Sketcher.Constraint("DistanceX", 3, 1, 3, 2, Q("5 mm")),
    Sketcher.Constraint("DistanceY", 0, 1, 0, 2, Q("4 mm")),
    Sketcher.Constraint("DistanceX", 1, 2, 1, 1, Q("9.5 mm")),
    Sketcher.Constraint("DistanceY", -1, 1, 0, 2, Q("95 mm")),
    Sketcher.Constraint("DistanceY", 2, 2, 2, 1, Q("2.25 mm")),
])
groove14 = body.newObject("PartDesign::Groove", "Groove013")
groove14.Profile = sketch15
groove14.ReferenceAxis = (sketch15, ["Axis0"])
groove14.Angle = 360

sketch16 = body.newObject("Sketcher::SketchObject", "Sketch015")
sketch16.AttachmentSupport = (doc.getObject("YZ_Plane"), [""])
sketch16.MapMode = "FlatFace"
sketch16.AttachmentOffset = App.Placement(Vector(0, 0, -11.5), App.Rotation())
add_polygon(sketch16, [(9.5, 91), (9.5, 95), (0, 95), (0, 92.8), (5, 92.8), (5, 91)])
sketch16.addGeometry(Part.LineSegment(Vector(0, 95, 0), Vector(9.5, 95, 0)), True)
sketch16.addConstraint([
    Sketcher.Constraint("Vertical", 0),
    Sketcher.Constraint("Horizontal", 1),
    Sketcher.Constraint("Vertical", 2),
    Sketcher.Constraint("Horizontal", 3),
    Sketcher.Constraint("Vertical", 4),
    Sketcher.Constraint("Horizontal", 5),
    Sketcher.Constraint("Horizontal", 6),
    Sketcher.Constraint("Coincident", 6, 1, 1, 2),
    Sketcher.Constraint("PointOnObject", 1, 2, -2),
    Sketcher.Constraint("Vertical", 5, 2, 6, 2),
    Sketcher.Constraint("DistanceX", 3, 1, 3, 2, Q("5 mm")),
    Sketcher.Constraint("DistanceY", 0, 1, 0, 2, Q("4 mm")),
    Sketcher.Constraint("DistanceX", 1, 2, 1, 1, Q("9.5 mm")),
    Sketcher.Constraint("DistanceY", -1, 1, 0, 2, Q("95 mm")),
    Sketcher.Constraint("DistanceY", 2, 2, 2, 1, Q("2.25 mm")),
])
groove15 = body.newObject("PartDesign::Groove", "Groove014")
groove15.Profile = sketch16
groove15.ReferenceAxis = (sketch16, ["Axis0"])
groove15.Angle = 360

sketch17 = body.newObject("Sketcher::SketchObject", "Sketch016")
sketch17.AttachmentSupport = (doc.getObject("YZ_Plane"), [""])
sketch17.MapMode = "FlatFace"
sketch17.AttachmentOffset = App.Placement(Vector(0, 0, 11.5), App.Rotation())
add_polygon(sketch17, [(9.5, 51), (9.5, 55), (0, 55), (0, 52.8), (5, 52.8), (5, 51)])
sketch17.addGeometry(Part.LineSegment(Vector(0, 55, 0), Vector(9.5, 55, 0)), True)
sketch17.addConstraint([
    Sketcher.Constraint("Vertical", 0),
    Sketcher.Constraint("Horizontal", 1),
    Sketcher.Constraint("Vertical", 2),
    Sketcher.Constraint("Horizontal", 3),
    Sketcher.Constraint("Vertical", 4),
    Sketcher.Constraint("Horizontal", 5),
    Sketcher.Constraint("Horizontal", 6),
    Sketcher.Constraint("Coincident", 6, 1, 1, 2),
    Sketcher.Constraint("PointOnObject", 1, 2, -2),
    Sketcher.Constraint("Vertical", 5, 2, 6, 2),
    Sketcher.Constraint("DistanceX", 3, 1, 3, 2, Q("5 mm")),
    Sketcher.Constraint("DistanceY", 0, 1, 0, 2, Q("4 mm")),
    Sketcher.Constraint("DistanceX", 1, 2, 1, 1, Q("9.5 mm")),
    Sketcher.Constraint("DistanceY", -1, 1, 0, 2, Q("55 mm")),
    Sketcher.Constraint("DistanceY", 2, 2, 2, 1, Q("2.25 mm")),
])
groove16 = body.newObject("PartDesign::Groove", "Groove015")
groove16.Profile = sketch17
groove16.ReferenceAxis = (sketch17, ["Axis0"])
groove16.Angle = 360

sketch18 = body.newObject("Sketcher::SketchObject", "Sketch017")
sketch18.AttachmentSupport = (doc.getObject("YZ_Plane"), [""])
sketch18.MapMode = "FlatFace"
sketch18.AttachmentOffset = App.Placement(Vector(0, 0, -11.5), App.Rotation())
add_polygon(sketch18, [(9.5, 51), (9.5, 55), (0, 55), (0, 52.8), (5, 52.8), (5, 51)])
sketch18.addGeometry(Part.LineSegment(Vector(0, 55, 0), Vector(9.5, 55, 0)), True)
sketch18.addConstraint([
    Sketcher.Constraint("Vertical", 0),
    Sketcher.Constraint("Horizontal", 1),
    Sketcher.Constraint("Vertical", 2),
    Sketcher.Constraint("Horizontal", 3),
    Sketcher.Constraint("Vertical", 4),
    Sketcher.Constraint("Horizontal", 5),
    Sketcher.Constraint("Horizontal", 6),
    Sketcher.Constraint("Coincident", 6, 1, 1, 2),
    Sketcher.Constraint("PointOnObject", 1, 2, -2),
    Sketcher.Constraint("Vertical", 5, 2, 6, 2),
    Sketcher.Constraint("DistanceX", 3, 1, 3, 2, Q("5 mm")),
    Sketcher.Constraint("DistanceY", 0, 1, 0, 2, Q("4 mm")),
    Sketcher.Constraint("DistanceX", 1, 2, 1, 1, Q("9.5 mm")),
    Sketcher.Constraint("DistanceY", -1, 1, 0, 2, Q("55 mm")),
    Sketcher.Constraint("DistanceY", 2, 2, 2, 1, Q("2.25 mm")),
])
groove17 = body.newObject("PartDesign::Groove", "Groove016")
groove17.Profile = sketch18
groove17.ReferenceAxis = (sketch18, ["Axis0"])
groove17.Angle = 360

sketch19 = body.newObject("Sketcher::SketchObject", "Sketch018")
sketch19.AttachmentSupport = (doc.getObject("YZ_Plane"), [""])
sketch19.MapMode = "FlatFace"
sketch19.AttachmentOffset = App.Placement(Vector(0, 0, -11.5), App.Rotation())
add_polygon(sketch19, [(9.5, 11), (9.5, 15), (0, 15), (0, 12.8), (5, 12.8), (5, 11)])
sketch19.addGeometry(Part.LineSegment(Vector(0, 15, 0), Vector(9.5, 15, 0)), True)
sketch19.addConstraint([
    Sketcher.Constraint("Vertical", 0),
    Sketcher.Constraint("Horizontal", 1),
    Sketcher.Constraint("Vertical", 2),
    Sketcher.Constraint("Horizontal", 3),
    Sketcher.Constraint("Vertical", 4),
    Sketcher.Constraint("Horizontal", 5),
    Sketcher.Constraint("Horizontal", 6),
    Sketcher.Constraint("Coincident", 6, 1, 1, 2),
    Sketcher.Constraint("PointOnObject", 1, 2, -2),
    Sketcher.Constraint("Vertical", 5, 2, 6, 2),
    Sketcher.Constraint("DistanceX", 3, 1, 3, 2, Q("5 mm")),
    Sketcher.Constraint("DistanceY", 0, 1, 0, 2, Q("4 mm")),
    Sketcher.Constraint("DistanceX", 1, 2, 1, 1, Q("9.5 mm")),
    Sketcher.Constraint("DistanceY", -1, 1, 0, 2, Q("15 mm")),
    Sketcher.Constraint("DistanceY", 2, 2, 2, 1, Q("2.25 mm")),
])
groove18 = body.newObject("PartDesign::Groove", "Groove017")
groove18.Profile = sketch19
groove18.ReferenceAxis = (sketch19, ["Axis0"])
groove18.Angle = 360

doc.recompute()
